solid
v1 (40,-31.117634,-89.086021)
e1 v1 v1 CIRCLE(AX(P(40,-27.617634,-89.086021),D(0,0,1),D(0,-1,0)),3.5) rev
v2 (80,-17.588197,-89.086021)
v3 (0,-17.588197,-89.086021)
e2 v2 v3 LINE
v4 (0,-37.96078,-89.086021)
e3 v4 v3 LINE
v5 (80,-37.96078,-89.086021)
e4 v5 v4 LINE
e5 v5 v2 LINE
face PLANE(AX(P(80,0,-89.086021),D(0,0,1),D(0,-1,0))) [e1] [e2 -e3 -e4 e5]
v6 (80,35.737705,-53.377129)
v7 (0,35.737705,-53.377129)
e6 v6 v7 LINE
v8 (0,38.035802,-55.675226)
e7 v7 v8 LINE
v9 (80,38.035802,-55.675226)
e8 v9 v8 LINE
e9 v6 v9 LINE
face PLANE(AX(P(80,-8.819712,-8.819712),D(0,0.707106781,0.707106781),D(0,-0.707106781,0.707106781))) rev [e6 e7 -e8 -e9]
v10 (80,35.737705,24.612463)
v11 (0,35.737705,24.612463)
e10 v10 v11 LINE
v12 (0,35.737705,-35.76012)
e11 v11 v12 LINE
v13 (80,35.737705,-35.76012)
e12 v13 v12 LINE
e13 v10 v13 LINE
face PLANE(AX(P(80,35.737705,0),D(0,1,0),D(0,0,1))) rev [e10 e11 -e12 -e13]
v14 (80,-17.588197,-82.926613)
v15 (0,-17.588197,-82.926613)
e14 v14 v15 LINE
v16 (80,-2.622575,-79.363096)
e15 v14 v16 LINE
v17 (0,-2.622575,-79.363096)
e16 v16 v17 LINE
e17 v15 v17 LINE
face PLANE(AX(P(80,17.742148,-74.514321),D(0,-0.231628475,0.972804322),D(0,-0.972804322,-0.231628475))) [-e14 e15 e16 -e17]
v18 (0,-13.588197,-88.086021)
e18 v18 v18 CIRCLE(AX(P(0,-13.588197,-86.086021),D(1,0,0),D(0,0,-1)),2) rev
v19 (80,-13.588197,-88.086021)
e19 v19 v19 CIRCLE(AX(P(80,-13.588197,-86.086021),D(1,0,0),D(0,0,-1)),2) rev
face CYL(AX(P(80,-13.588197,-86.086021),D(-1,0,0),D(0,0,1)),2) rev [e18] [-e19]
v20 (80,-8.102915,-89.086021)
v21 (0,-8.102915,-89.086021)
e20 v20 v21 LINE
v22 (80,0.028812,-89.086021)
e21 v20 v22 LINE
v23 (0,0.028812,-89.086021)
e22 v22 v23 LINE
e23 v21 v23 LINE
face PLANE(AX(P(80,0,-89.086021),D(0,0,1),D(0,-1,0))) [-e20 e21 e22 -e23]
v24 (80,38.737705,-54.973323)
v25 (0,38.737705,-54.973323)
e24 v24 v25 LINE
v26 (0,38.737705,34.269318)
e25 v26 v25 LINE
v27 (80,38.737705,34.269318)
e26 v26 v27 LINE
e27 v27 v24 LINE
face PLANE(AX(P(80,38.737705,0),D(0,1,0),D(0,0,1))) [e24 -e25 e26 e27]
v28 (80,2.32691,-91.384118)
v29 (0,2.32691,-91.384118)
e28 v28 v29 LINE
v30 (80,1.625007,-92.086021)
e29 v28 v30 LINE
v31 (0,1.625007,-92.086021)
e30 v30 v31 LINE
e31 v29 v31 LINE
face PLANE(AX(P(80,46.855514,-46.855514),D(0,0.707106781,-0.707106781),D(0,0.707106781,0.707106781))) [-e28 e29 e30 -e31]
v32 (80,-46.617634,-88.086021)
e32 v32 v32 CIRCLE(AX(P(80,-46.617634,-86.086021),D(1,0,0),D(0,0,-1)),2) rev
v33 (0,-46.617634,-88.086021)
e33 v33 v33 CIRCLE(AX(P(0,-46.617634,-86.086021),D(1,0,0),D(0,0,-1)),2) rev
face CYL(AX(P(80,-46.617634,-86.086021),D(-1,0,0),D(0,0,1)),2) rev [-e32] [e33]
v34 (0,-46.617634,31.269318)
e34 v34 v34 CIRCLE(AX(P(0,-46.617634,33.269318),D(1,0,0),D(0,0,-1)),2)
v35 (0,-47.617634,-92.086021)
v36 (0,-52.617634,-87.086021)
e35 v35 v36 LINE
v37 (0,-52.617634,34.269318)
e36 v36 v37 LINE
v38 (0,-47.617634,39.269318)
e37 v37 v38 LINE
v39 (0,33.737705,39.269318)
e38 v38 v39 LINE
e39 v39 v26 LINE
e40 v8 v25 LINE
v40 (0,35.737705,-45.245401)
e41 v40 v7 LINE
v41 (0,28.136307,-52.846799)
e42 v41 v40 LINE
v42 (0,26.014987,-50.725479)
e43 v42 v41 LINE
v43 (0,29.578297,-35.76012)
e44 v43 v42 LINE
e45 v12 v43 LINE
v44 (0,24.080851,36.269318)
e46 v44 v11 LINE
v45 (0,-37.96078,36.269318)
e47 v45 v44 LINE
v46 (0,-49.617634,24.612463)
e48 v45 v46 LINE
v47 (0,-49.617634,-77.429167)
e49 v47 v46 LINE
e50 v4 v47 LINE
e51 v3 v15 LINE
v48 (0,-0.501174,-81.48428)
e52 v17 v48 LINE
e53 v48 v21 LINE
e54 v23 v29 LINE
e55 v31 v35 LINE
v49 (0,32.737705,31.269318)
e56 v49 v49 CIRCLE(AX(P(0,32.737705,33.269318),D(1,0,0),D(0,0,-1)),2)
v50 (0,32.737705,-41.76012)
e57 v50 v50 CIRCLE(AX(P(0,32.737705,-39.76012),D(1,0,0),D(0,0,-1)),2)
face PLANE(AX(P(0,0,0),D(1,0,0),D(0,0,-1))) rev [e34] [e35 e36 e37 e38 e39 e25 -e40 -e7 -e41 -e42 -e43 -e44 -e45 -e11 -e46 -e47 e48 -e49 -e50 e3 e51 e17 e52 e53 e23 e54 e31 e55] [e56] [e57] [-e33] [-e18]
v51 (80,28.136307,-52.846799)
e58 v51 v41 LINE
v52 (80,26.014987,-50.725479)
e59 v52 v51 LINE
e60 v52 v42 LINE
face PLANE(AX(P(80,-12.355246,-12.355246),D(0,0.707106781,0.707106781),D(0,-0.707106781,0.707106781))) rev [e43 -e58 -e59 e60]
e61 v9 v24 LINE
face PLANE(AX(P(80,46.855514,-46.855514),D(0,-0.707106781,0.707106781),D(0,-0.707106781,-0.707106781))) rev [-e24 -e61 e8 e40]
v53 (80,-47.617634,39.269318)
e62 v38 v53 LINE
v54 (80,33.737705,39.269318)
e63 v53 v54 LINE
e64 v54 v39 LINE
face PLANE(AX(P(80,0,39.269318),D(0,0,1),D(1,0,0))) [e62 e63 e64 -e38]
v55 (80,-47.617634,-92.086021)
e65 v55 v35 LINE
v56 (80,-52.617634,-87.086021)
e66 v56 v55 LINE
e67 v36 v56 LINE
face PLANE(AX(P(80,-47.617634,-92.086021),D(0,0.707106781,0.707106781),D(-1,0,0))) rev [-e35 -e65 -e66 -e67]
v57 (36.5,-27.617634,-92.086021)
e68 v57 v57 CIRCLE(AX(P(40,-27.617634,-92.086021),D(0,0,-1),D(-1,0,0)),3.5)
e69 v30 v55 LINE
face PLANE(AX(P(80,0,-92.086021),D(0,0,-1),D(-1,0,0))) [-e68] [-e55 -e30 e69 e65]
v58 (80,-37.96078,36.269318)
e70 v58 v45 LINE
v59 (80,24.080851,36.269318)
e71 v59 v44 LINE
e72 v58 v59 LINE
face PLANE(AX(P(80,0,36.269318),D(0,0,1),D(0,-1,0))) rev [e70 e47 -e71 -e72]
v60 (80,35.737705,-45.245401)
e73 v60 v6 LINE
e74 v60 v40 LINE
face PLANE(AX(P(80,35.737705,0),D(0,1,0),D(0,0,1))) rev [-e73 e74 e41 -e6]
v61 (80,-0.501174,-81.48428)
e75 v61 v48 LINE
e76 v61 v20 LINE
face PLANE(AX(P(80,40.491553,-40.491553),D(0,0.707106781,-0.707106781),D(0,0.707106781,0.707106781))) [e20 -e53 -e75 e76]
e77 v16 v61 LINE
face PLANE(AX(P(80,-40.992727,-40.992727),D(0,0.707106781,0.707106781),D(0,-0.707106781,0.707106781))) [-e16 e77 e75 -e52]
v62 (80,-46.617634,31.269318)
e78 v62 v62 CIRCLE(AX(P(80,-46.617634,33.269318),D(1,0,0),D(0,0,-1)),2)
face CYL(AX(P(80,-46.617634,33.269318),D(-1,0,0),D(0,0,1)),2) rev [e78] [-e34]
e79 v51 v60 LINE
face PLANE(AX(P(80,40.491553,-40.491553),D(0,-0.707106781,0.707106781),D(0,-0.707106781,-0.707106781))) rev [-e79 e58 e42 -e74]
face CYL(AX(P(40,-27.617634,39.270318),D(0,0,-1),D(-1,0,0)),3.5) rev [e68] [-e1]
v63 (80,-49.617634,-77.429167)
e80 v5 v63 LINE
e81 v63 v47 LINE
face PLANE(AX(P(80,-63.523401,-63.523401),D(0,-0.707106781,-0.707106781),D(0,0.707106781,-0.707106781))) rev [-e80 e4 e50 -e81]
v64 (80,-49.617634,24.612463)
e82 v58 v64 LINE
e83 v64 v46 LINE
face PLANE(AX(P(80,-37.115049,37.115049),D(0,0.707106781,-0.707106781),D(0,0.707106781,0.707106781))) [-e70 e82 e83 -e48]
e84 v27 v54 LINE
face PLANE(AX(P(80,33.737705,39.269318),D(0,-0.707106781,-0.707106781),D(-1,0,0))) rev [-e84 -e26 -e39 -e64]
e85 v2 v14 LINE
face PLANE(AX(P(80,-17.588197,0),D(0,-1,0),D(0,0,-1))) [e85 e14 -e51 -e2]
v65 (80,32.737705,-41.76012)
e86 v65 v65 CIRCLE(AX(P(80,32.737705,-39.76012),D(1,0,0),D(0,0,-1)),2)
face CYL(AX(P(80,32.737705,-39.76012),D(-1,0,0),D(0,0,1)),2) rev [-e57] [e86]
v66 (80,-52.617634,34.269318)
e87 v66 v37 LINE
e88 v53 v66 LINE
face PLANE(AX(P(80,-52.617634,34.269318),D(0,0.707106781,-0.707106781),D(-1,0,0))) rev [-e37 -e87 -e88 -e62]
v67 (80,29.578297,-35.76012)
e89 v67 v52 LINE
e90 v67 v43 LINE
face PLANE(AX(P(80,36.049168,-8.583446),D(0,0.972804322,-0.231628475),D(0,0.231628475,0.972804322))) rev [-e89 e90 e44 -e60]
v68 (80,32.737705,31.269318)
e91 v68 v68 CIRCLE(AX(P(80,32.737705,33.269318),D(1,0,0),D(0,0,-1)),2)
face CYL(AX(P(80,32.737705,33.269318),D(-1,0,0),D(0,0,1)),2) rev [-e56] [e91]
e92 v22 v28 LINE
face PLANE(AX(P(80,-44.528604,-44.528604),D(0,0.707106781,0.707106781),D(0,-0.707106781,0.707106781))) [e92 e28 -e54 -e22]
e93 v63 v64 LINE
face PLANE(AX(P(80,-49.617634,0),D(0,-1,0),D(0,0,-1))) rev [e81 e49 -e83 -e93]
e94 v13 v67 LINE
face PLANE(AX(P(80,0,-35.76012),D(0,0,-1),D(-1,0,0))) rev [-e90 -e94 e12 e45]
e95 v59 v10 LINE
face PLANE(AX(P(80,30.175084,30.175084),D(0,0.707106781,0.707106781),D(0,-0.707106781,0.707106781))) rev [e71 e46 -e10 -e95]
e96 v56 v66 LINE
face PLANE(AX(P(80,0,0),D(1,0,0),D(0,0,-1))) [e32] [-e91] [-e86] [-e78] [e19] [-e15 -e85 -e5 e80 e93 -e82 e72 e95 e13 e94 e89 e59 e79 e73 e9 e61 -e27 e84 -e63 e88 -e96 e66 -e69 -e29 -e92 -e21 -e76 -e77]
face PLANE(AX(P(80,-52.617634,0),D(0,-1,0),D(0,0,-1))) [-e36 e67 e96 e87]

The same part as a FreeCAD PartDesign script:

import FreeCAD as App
import Part
import Sketcher
from FreeCAD import Vector


def edges_at(feature, points):
    """Names of the edges that pass closest to the given points."""
    edges = feature.Shape.Edges
    near = lambda p: min(range(len(edges)), key=lambda i: edges[i].distToShape(Part.Vertex(*p))[0])
    return sorted({f"Edge{near(p) + 1}" for p in points})

doc = App.newDocument("Part")
body = doc.addObject("PartDesign::Body", "Body")

sketch1 = body.newObject("Sketcher::SketchObject", "Sketch")
sketch1.AttachmentSupport = (doc.getObject("YZ_Plane"), [""])
sketch1.MapMode = "FlatFace"
sketch1.addGeometry([
    Part.LineSegment(Vector(-37.96078, -89.08602, 0), Vector(-49.61763, -77.42917, 0)),
    Part.LineSegment(Vector(-49.61763, -77.42917, 0), Vector(-49.61763, 24.61246, 0)),
    Part.LineSegment(Vector(-49.61763, 24.61246, 0), Vector(-37.96078, 36.26932, 0)),
    Part.LineSegment(Vector(-37.96078, 36.26932, 0), Vector(24.08085, 36.26932, 0)),
    Part.LineSegment(Vector(24.08085, 36.26932, 0), Vector(35.7377, 24.61246, 0)),
    Part.LineSegment(Vector(35.7377, 24.61246, 0), Vector(35.7377, -35.76012, 0)),
    Part.LineSegment(Vector(35.7377, -35.76012, 0), Vector(29.5783, -35.76012, 0)),
    Part.LineSegment(Vector(29.5783, -35.76012, 0), Vector(26.01499, -50.72548, 0)),
    Part.LineSegment(Vector(26.01499, -50.72548, 0), Vector(28.13631, -52.8468, 0)),
    Part.LineSegment(Vector(28.13631, -52.8468, 0), Vector(35.7377, -45.2454, 0)),
    Part.LineSegment(Vector(35.7377, -45.2454, 0), Vector(35.7377, -53.37713, 0)),
    Part.LineSegment(Vector(35.7377, -53.37713, 0), Vector(38.0358, -55.67523, 0)),
    Part.LineSegment(Vector(38.0358, -55.67523, 0), Vector(38.7377, -54.97332, 0)),
    Part.LineSegment(Vector(38.7377, -54.97332, 0), Vector(38.7377, 39.26932, 0)),
    Part.LineSegment(Vector(38.7377, 39.26932, 0), Vector(-52.61763, 39.26932, 0)),
    Part.LineSegment(Vector(-52.61763, 39.26932, 0), Vector(-52.61763, -92.08602, 0)),
    Part.LineSegment(Vector(-52.61763, -92.08602, 0), Vector(1.62501, -92.08602, 0)),
    Part.LineSegment(Vector(1.62501, -92.08602, 0), Vector(2.32691, -91.38412, 0)),
    Part.LineSegment(Vector(2.32691, -91.38412, 0), Vector(0.02881, -89.08602, 0)),
    Part.LineSegment(Vector(0.02881, -89.08602, 0), Vector(-8.10292, -89.08602, 0)),
    Part.LineSegment(Vector(-8.10292, -89.08602, 0), Vector(-0.50117, -81.48428, 0)),
    Part.LineSegment(Vector(-0.50117, -81.48428, 0), Vector(-2.62249, -79.36296, 0)),
    Part.LineSegment(Vector(-2.62249, -79.36296, 0), Vector(-2.62284, -79.3633, 0)),
    Part.LineSegment(Vector(-2.62284, -79.3633, 0), Vector(-17.5882, -82.92661, 0)),
    Part.LineSegment(Vector(-17.5882, -82.92661, 0), Vector(-17.5882, -89.08602, 0)),
    Part.LineSegment(Vector(-17.5882, -89.08602, 0), Vector(-37.96078, -89.08602, 0)),
    Part.Circle(Vector(-46.61763, 33.26932, 0), Vector(0, 0, 1), 2),
    Part.Circle(Vector(-46.61763, -86.08602, 0), Vector(0, 0, 1), 2),
    Part.Circle(Vector(-13.5882, -86.08602, 0), Vector(0, 0, 1), 2),
    Part.Circle(Vector(32.7377, 33.26932, 0), Vector(0, 0, 1), 2),
    Part.Circle(Vector(32.7377, -39.76012, 0), Vector(0, 0, 1), 2),
], False)
sketch1.addConstraint([
    Sketcher.Constraint("Coincident", 0, 2, 1, 1),
    Sketcher.Constraint("Coincident", 1, 2, 2, 1),
    Sketcher.Constraint("Coincident", 2, 2, 3, 1),
    Sketcher.Constraint("Coincident", 3, 2, 4, 1),
    Sketcher.Constraint("Coincident", 4, 2, 5, 1),
    Sketcher.Constraint("Coincident", 5, 2, 6, 1),
    Sketcher.Constraint("Coincident", 6, 2, 7, 1),
    Sketcher.Constraint("Coincident", 7, 2, 8, 1),
    Sketcher.Constraint("Coincident", 8, 2, 9, 1),
    Sketcher.Constraint("Coincident", 9, 2, 10, 1),
    Sketcher.Constraint("Coincident", 10, 2, 11, 1),
    Sketcher.Constraint("Coincident", 11, 2, 12, 1),
    Sketcher.Constraint("Coincident", 12, 2, 13, 1),
    Sketcher.Constraint("Coincident", 13, 2, 14, 1),
    Sketcher.Constraint("Coincident", 14, 2, 15, 1),
    Sketcher.Constraint("Coincident", 15, 2, 16, 1),
    Sketcher.Constraint("Coincident", 16, 2, 17, 1),
    Sketcher.Constraint("Coincident", 17, 2, 18, 1),
    Sketcher.Constraint("Coincident", 18, 2, 19, 1),
    Sketcher.Constraint("Coincident", 19, 2, 20, 1),
    Sketcher.Constraint("Coincident", 20, 2, 21, 1),
    Sketcher.Constraint("Coincident", 21, 2, 22, 1),
    Sketcher.Constraint("Coincident", 22, 2, 23, 1),
    Sketcher.Constraint("Coincident", 23, 2, 24, 1),
    Sketcher.Constraint("Coincident", 24, 2, 25, 1),
    Sketcher.Constraint("Coincident", 25, 2, 0, 1),
    Sketcher.Constraint("Vertical", 1),
    Sketcher.Constraint("Horizontal", 3),
    Sketcher.Constraint("Vertical", 5),
    Sketcher.Constraint("Horizontal", 6),
    Sketcher.Constraint("Vertical", 10),
    Sketcher.Constraint("Vertical", 13),
    Sketcher.Constraint("Horizontal", 14),
    Sketcher.Constraint("Vertical", 15),
    Sketcher.Constraint("Horizontal", 16),
    Sketcher.Constraint("Horizontal", 19),
    Sketcher.Constraint("Vertical", 24),
    Sketcher.Constraint("Horizontal", 25),
    Sketcher.Constraint("Equal", 26, 27),
    Sketcher.Constraint("Equal", 27, 28),
    Sketcher.Constraint("Equal", 28, 29),
    Sketcher.Constraint("Equal", 29, 30),
    Sketcher.Constraint("Perpendicular", 0, 2),
    Sketcher.Constraint("Perpendicular", 2, 4),
    Sketcher.Constraint("Parallel", 4, 8),
    Sketcher.Constraint("Perpendicular", 8, 9),
    Sketcher.Constraint("Perpendicular", 9, 11),
    Sketcher.Constraint("Perpendicular", 11, 12),
    Sketcher.Constraint("Parallel", 12, 17),
    Sketcher.Constraint("Perpendicular", 17, 18),
    Sketcher.Constraint("Perpendicular", 18, 20),
    Sketcher.Constraint("Perpendicular", 20, 21),
    Sketcher.Constraint("Perpendicular", 21, 22),
    Sketcher.Constraint("Horizontal", 27, 3, 28, 3),
    Sketcher.Constraint("Horizontal", 26, 3, 29, 3),
    Sketcher.Constraint("Horizontal", 1, 2, 4, 2),
    Sketcher.Constraint("Horizontal", 19, 2, 24, 2),
    Sketcher.Constraint("Vertical", 26, 3, 27, 3),
    Sketcher.Constraint("Vertical", 29, 3, 30, 3),
    Sketcher.Constraint("Vertical", 5, 2, 9, 2),
    Sketcher.Constraint("Vertical", 2, 2, 25, 2),
    Sketcher.Constraint("Equal", 19, 10),
    Sketcher.Constraint("Equal", 6, 24),
    Sketcher.Constraint("Equal", 0, 2),
    Sketcher.Constraint("Equal", 12, 17),
    Sketcher.Constraint("Equal", 11, 18),
    Sketcher.Constraint("Equal", 8, 21),
    Sketcher.Constraint("Equal", 7, 23),
    Sketcher.Constraint("Diameter", 26, 4.0),
    Sketcher.Constraint("Distance", 8, 3.0),
    Sketcher.Constraint("DistanceX", 0, 2, 27, 3, 3.0),
    Sketcher.Constraint("DistanceY", 26, 3, 2, 2, 3.0),
    Sketcher.Constraint("DistanceX", 29, 3, 4, 2, 3.0),
    Sketcher.Constraint("DistanceY", 30, 3, 5, 2, 4.0),
    Sketcher.Constraint("DistanceX", 10, 2, 12, 2, 3.0),
    Sketcher.Constraint("DistanceY", 29, 3, 13, 2, 6.0),
    Sketcher.Constraint("DistanceX", 14, 2, 26, 3, 6.0),
    Sketcher.Constraint("DistanceY", 15, 2, 27, 3, 6.0),
    Sketcher.Constraint("DistanceX", 23, 2, 28, 3, 4.0),
    Sketcher.Constraint("Distance", 9, 10.75),
    Sketcher.Constraint("Distance", 11, 3.25),
    Sketcher.Constraint("DistanceX", 3, 1, 3, 2, 62.041631),
    Sketcher.Constraint("DistanceX", 6, 2, 6, 1, 6.159408),
    Sketcher.Constraint("DistanceX", 14, 2, 14, 1, 91.355339),
    Sketcher.Constraint("DistanceX", 16, 1, 16, 2, 54.242641),
    Sketcher.Constraint("DistanceY", 1, 1, 1, 2, 102.041631),
    Sketcher.Constraint("DistanceY", 13, 1, 13, 2, 94.242641),
    Sketcher.Constraint("DistanceY", 8, 2, -1, 1, 52.846799),
    Sketcher.Constraint("DistanceX", -1, 1, 11, 2, 38.035802),
    Sketcher.Constraint("DistanceX", 28, 3, 29, 3, 46.325902),
    Sketcher.Constraint("DistanceY", 28, 3, 30, 3, 46.325902),
    Sketcher.Constraint("Distance", 7, 15.38373),
    Sketcher.Constraint("DistanceY", 20, 2, -1, 1, 81.48428),
])
pad1 = body.newObject("PartDesign::Pad", "Pad")
pad1.Profile = sketch1
pad1.Length = 80
doc.recompute()

chamfer = body.newObject("PartDesign::Chamfer", "Chamfer")
chamfer.Base = (pad1, edges_at(pad1, [(40, -52.618, -92.086), (40, -52.618, 39.269), (40, 38.738, 39.269)]))
chamfer.Size = 5

sketch2 = body.newObject("Sketcher::SketchObject", "Sketch001")
sketch2.AttachmentSupport = (doc.getObject("XY_Plane"), [""])
sketch2.MapMode = "FlatFace"
sketch2.AttachmentOffset = App.Placement(Vector(0, 0, -92.086021), App.Rotation())
sketch2.addGeometry(Part.Circle(Vector(40, -27.6, 0), Vector(0, 0, 1), 3.5), False)
sketch2.addConstraint([
    Sketcher.Constraint("Diameter", 0, 7.0),
    Sketcher.Constraint("DistanceX", -1, 1, 0, 3, 40.0),
    Sketcher.Constraint("DistanceY", 0, 3, -1, 1, 27.617634),
])
pocket1 = body.newObject("PartDesign::Pocket", "Pocket")
pocket1.Profile = sketch2
pocket1.Type = "UpToFirst"
pocket1.Reversed = True

doc.recompute()
